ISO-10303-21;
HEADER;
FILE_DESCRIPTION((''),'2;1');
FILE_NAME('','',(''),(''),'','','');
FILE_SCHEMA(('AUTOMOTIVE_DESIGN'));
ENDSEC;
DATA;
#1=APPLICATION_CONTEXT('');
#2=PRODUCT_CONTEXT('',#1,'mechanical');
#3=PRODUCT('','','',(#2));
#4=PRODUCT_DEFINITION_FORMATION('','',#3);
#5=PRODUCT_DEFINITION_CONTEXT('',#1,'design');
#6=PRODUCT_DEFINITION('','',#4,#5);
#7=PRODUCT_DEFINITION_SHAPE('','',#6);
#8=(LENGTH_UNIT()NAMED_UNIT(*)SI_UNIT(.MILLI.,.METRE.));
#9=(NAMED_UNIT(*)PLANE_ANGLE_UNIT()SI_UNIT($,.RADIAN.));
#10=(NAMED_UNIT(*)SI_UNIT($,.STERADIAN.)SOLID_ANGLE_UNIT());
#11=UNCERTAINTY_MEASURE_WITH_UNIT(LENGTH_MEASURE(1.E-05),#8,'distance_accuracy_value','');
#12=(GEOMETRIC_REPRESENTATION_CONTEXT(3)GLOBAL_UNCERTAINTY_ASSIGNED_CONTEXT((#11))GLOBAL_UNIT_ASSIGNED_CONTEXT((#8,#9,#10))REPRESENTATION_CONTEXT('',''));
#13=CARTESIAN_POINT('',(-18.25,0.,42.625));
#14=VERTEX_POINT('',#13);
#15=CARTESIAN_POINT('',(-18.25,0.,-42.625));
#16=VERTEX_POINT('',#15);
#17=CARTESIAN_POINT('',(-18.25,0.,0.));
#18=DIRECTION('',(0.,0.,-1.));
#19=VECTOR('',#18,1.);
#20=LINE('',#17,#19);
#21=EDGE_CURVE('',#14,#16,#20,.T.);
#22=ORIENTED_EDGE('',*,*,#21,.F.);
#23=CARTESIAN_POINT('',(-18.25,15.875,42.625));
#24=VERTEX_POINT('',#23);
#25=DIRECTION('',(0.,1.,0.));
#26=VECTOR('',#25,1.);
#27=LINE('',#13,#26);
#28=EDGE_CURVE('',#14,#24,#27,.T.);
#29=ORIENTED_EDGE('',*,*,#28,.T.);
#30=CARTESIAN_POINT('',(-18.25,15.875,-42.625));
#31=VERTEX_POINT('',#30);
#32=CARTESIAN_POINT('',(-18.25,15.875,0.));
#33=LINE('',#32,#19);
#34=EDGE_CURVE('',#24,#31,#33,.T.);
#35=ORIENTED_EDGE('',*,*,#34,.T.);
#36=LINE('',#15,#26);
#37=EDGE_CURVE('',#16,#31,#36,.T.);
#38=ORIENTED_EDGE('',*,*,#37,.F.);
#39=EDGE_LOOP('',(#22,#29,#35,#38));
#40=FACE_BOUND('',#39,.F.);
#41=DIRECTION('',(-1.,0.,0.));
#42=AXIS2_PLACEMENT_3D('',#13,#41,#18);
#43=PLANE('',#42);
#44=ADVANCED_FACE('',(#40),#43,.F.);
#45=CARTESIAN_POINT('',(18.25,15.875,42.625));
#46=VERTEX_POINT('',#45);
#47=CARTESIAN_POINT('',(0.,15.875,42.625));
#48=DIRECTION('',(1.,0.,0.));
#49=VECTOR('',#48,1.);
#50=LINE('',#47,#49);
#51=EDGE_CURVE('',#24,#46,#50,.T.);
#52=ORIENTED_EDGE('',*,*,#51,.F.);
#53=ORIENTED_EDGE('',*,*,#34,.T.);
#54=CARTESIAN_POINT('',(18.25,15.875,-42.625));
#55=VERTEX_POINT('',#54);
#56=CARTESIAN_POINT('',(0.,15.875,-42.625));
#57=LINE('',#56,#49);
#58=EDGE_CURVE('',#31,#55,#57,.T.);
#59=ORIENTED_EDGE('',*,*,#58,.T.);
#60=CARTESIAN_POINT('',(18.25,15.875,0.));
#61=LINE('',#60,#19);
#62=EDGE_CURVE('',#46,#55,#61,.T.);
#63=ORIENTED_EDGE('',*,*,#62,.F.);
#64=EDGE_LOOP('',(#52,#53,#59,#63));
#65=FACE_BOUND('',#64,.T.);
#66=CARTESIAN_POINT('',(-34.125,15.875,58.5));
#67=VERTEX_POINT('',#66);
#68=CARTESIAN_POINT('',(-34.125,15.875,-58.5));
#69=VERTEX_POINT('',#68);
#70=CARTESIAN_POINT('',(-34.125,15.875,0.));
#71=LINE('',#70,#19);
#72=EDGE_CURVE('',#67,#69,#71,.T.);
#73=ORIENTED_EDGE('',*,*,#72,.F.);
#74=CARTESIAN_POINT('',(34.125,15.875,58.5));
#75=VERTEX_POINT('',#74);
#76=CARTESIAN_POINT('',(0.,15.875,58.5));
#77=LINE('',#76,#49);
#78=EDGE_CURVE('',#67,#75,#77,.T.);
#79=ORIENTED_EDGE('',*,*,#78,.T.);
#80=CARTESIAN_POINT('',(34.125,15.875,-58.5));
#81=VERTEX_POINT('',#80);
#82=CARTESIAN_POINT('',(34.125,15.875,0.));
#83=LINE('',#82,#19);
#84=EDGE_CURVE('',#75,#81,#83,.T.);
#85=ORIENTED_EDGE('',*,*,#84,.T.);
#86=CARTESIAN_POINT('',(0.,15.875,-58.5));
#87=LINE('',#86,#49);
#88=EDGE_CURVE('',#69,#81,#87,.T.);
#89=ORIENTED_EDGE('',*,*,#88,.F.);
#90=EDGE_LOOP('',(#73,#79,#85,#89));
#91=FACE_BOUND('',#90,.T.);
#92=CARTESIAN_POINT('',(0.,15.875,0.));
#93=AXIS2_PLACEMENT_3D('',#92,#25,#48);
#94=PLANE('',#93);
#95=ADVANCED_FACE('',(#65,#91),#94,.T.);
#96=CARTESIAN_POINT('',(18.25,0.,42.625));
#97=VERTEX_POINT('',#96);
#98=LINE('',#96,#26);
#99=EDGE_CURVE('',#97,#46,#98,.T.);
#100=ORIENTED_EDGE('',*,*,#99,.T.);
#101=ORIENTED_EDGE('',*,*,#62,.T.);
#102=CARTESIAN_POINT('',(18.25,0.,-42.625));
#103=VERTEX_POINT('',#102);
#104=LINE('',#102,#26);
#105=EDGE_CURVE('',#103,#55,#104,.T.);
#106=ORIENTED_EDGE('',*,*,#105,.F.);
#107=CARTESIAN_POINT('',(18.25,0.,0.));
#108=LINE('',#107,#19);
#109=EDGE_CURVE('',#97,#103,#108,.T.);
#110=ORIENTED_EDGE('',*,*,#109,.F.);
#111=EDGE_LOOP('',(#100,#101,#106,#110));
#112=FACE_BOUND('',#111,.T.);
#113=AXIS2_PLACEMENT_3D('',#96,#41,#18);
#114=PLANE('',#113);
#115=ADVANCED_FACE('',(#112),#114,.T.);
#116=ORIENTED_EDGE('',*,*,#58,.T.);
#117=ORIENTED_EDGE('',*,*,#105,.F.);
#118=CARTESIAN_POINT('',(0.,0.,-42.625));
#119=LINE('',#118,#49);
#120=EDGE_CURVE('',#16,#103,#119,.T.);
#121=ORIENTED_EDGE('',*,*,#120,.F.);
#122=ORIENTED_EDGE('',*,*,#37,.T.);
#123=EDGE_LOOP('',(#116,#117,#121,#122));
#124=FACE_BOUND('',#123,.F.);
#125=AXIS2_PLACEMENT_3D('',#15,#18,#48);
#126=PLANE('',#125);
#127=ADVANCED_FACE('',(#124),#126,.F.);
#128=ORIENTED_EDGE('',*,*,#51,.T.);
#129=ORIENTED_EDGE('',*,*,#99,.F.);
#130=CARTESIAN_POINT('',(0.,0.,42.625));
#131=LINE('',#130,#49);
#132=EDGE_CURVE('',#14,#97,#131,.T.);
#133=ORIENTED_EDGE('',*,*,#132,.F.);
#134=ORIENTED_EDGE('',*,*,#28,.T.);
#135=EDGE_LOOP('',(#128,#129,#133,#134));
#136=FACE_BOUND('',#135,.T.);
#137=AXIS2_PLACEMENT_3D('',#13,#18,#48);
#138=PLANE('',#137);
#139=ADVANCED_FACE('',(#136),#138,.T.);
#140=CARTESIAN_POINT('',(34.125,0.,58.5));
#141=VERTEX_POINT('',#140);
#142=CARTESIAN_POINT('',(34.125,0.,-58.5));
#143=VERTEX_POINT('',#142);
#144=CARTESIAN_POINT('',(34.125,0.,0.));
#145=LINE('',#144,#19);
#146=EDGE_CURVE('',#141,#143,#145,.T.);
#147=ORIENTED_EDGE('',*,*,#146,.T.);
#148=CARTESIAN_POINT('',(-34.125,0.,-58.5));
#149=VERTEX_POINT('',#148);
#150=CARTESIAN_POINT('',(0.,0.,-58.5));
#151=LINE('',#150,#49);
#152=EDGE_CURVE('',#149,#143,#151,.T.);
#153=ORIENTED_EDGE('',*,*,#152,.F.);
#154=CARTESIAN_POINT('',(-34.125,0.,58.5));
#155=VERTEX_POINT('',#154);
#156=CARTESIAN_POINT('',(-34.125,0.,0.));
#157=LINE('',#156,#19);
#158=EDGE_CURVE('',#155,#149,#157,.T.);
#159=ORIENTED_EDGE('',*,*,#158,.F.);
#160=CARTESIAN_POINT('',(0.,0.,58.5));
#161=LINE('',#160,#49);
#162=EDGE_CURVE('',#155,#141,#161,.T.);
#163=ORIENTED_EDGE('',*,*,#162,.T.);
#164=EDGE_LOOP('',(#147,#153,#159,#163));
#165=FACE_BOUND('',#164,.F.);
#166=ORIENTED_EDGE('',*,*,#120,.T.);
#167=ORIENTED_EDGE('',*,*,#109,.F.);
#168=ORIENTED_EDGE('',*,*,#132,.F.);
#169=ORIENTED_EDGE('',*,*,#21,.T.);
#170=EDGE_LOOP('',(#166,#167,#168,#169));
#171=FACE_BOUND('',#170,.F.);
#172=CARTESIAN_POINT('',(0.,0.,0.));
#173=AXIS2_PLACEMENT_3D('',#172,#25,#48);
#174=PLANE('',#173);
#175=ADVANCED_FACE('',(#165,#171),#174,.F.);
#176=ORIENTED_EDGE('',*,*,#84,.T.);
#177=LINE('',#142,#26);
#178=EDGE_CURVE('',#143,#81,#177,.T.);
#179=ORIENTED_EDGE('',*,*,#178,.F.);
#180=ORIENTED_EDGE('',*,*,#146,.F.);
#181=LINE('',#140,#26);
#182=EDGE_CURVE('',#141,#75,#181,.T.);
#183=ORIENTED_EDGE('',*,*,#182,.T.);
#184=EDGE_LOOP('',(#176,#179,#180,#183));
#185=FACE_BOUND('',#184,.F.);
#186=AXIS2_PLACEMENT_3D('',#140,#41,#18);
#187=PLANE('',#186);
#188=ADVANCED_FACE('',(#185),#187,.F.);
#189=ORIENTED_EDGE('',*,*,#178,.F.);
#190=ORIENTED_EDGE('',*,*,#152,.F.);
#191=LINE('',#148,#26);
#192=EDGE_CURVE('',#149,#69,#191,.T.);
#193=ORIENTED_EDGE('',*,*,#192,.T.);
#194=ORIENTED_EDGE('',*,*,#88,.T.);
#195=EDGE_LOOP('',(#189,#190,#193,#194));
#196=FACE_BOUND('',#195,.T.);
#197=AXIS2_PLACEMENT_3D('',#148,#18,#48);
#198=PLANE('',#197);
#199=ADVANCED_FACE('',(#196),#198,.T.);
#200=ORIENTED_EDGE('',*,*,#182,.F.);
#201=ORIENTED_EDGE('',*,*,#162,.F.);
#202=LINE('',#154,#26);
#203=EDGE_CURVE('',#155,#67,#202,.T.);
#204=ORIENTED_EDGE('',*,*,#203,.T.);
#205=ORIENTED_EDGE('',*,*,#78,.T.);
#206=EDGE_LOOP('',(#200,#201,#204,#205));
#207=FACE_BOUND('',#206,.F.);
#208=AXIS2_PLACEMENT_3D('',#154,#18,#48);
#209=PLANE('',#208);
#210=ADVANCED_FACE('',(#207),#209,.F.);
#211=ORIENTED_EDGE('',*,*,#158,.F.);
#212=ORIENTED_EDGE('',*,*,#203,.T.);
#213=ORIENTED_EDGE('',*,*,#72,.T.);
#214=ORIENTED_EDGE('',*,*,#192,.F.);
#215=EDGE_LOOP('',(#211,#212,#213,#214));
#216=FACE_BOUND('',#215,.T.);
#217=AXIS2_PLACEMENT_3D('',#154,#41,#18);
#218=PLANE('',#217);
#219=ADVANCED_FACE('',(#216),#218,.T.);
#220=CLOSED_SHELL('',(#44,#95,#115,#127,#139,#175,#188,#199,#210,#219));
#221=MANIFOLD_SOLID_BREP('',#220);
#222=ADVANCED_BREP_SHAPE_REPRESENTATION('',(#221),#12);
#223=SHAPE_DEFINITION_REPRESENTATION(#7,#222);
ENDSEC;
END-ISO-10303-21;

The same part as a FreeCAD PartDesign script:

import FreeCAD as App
import Part
import Sketcher
from FreeCAD import Vector

doc = App.newDocument("Part")
body = doc.addObject("PartDesign::Body", "Body")

# Sketch on XZ plane
sketch1 = body.newObject("Sketcher::SketchObject", "Sketch")
sketch1.AttachmentSupport = (doc.getObject("XZ_Plane"), [""])
sketch1.MapMode = "FlatFace"
sketch1.addGeometry(Part.LineSegment(Vector(-34, -58, 0), Vector(-34, 58, 0)), False)
sketch1.addGeometry(Part.LineSegment(Vector(-34, 58, 0), Vector(34, 58, 0)), False)
sketch1.addGeometry(Part.LineSegment(Vector(34, 58, 0), Vector(34, -58, 0)), False)
sketch1.addGeometry(Part.LineSegment(Vector(34, -58, 0), Vector(-34, -58, 0)), False)
sketch1.addGeometry(Part.LineSegment(Vector(18, 43, 0), Vector(-18, 43, 0)), False)
sketch1.addGeometry(Part.LineSegment(Vector(-18, 43, 0), Vector(-18, -43, 0)), False)
sketch1.addGeometry(Part.LineSegment(Vector(-18, -43, 0), Vector(18, -43, 0)), False)
sketch1.addGeometry(Part.LineSegment(Vector(18, -43, 0), Vector(18, 43, 0)), False)
sketch1.addConstraint(Sketcher.Constraint("Coincident", 0, 2, 1, 1))
sketch1.addConstraint(Sketcher.Constraint("Coincident", 1, 2, 2, 1))
sketch1.addConstraint(Sketcher.Constraint("Coincident", 2, 2, 3, 1))
sketch1.addConstraint(Sketcher.Constraint("Coincident", 3, 2, 0, 1))
sketch1.addConstraint(Sketcher.Constraint("Coincident", 4, 2, 5, 1))
sketch1.addConstraint(Sketcher.Constraint("Coincident", 5, 2, 6, 1))
sketch1.addConstraint(Sketcher.Constraint("Coincident", 6, 2, 7, 1))
sketch1.addConstraint(Sketcher.Constraint("Coincident", 7, 2, 4, 1))
sketch1.addConstraint(Sketcher.Constraint("Vertical", 0))
sketch1.addConstraint(Sketcher.Constraint("Horizontal", 1))
sketch1.addConstraint(Sketcher.Constraint("Vertical", 2))
sketch1.addConstraint(Sketcher.Constraint("Horizontal", 3))
sketch1.addConstraint(Sketcher.Constraint("Horizontal", 4))
sketch1.addConstraint(Sketcher.Constraint("Vertical", 5))
sketch1.addConstraint(Sketcher.Constraint("Horizontal", 6))
sketch1.addConstraint(Sketcher.Constraint("Vertical", 7))
sketch1.addConstraint(Sketcher.Constraint("Symmetric", 0, 2, 2, 2, -1, 1))
sketch1.addConstraint(Sketcher.Constraint("Symmetric", 4, 2, 6, 2, -1, 1))
sketch1.addConstraint(Sketcher.Constraint("DistanceY", 0, 1, 0, 2, 117.0))
sketch1.addConstraint(Sketcher.Constraint("DistanceX", 4, 2, 4, 1, 36.5))
sketch1.addConstraint(Sketcher.Constraint("DistanceX", 1, 1, 1, 2, 68.25))
sketch1.addConstraint(Sketcher.Constraint("DistanceY", 5, 2, 5, 1, 85.25))
pad1 = body.newObject("PartDesign::Pad", "Pad")
pad1.Profile = sketch1
pad1.Length = 15.875
pad1.Reversed = True

doc.recompute()
